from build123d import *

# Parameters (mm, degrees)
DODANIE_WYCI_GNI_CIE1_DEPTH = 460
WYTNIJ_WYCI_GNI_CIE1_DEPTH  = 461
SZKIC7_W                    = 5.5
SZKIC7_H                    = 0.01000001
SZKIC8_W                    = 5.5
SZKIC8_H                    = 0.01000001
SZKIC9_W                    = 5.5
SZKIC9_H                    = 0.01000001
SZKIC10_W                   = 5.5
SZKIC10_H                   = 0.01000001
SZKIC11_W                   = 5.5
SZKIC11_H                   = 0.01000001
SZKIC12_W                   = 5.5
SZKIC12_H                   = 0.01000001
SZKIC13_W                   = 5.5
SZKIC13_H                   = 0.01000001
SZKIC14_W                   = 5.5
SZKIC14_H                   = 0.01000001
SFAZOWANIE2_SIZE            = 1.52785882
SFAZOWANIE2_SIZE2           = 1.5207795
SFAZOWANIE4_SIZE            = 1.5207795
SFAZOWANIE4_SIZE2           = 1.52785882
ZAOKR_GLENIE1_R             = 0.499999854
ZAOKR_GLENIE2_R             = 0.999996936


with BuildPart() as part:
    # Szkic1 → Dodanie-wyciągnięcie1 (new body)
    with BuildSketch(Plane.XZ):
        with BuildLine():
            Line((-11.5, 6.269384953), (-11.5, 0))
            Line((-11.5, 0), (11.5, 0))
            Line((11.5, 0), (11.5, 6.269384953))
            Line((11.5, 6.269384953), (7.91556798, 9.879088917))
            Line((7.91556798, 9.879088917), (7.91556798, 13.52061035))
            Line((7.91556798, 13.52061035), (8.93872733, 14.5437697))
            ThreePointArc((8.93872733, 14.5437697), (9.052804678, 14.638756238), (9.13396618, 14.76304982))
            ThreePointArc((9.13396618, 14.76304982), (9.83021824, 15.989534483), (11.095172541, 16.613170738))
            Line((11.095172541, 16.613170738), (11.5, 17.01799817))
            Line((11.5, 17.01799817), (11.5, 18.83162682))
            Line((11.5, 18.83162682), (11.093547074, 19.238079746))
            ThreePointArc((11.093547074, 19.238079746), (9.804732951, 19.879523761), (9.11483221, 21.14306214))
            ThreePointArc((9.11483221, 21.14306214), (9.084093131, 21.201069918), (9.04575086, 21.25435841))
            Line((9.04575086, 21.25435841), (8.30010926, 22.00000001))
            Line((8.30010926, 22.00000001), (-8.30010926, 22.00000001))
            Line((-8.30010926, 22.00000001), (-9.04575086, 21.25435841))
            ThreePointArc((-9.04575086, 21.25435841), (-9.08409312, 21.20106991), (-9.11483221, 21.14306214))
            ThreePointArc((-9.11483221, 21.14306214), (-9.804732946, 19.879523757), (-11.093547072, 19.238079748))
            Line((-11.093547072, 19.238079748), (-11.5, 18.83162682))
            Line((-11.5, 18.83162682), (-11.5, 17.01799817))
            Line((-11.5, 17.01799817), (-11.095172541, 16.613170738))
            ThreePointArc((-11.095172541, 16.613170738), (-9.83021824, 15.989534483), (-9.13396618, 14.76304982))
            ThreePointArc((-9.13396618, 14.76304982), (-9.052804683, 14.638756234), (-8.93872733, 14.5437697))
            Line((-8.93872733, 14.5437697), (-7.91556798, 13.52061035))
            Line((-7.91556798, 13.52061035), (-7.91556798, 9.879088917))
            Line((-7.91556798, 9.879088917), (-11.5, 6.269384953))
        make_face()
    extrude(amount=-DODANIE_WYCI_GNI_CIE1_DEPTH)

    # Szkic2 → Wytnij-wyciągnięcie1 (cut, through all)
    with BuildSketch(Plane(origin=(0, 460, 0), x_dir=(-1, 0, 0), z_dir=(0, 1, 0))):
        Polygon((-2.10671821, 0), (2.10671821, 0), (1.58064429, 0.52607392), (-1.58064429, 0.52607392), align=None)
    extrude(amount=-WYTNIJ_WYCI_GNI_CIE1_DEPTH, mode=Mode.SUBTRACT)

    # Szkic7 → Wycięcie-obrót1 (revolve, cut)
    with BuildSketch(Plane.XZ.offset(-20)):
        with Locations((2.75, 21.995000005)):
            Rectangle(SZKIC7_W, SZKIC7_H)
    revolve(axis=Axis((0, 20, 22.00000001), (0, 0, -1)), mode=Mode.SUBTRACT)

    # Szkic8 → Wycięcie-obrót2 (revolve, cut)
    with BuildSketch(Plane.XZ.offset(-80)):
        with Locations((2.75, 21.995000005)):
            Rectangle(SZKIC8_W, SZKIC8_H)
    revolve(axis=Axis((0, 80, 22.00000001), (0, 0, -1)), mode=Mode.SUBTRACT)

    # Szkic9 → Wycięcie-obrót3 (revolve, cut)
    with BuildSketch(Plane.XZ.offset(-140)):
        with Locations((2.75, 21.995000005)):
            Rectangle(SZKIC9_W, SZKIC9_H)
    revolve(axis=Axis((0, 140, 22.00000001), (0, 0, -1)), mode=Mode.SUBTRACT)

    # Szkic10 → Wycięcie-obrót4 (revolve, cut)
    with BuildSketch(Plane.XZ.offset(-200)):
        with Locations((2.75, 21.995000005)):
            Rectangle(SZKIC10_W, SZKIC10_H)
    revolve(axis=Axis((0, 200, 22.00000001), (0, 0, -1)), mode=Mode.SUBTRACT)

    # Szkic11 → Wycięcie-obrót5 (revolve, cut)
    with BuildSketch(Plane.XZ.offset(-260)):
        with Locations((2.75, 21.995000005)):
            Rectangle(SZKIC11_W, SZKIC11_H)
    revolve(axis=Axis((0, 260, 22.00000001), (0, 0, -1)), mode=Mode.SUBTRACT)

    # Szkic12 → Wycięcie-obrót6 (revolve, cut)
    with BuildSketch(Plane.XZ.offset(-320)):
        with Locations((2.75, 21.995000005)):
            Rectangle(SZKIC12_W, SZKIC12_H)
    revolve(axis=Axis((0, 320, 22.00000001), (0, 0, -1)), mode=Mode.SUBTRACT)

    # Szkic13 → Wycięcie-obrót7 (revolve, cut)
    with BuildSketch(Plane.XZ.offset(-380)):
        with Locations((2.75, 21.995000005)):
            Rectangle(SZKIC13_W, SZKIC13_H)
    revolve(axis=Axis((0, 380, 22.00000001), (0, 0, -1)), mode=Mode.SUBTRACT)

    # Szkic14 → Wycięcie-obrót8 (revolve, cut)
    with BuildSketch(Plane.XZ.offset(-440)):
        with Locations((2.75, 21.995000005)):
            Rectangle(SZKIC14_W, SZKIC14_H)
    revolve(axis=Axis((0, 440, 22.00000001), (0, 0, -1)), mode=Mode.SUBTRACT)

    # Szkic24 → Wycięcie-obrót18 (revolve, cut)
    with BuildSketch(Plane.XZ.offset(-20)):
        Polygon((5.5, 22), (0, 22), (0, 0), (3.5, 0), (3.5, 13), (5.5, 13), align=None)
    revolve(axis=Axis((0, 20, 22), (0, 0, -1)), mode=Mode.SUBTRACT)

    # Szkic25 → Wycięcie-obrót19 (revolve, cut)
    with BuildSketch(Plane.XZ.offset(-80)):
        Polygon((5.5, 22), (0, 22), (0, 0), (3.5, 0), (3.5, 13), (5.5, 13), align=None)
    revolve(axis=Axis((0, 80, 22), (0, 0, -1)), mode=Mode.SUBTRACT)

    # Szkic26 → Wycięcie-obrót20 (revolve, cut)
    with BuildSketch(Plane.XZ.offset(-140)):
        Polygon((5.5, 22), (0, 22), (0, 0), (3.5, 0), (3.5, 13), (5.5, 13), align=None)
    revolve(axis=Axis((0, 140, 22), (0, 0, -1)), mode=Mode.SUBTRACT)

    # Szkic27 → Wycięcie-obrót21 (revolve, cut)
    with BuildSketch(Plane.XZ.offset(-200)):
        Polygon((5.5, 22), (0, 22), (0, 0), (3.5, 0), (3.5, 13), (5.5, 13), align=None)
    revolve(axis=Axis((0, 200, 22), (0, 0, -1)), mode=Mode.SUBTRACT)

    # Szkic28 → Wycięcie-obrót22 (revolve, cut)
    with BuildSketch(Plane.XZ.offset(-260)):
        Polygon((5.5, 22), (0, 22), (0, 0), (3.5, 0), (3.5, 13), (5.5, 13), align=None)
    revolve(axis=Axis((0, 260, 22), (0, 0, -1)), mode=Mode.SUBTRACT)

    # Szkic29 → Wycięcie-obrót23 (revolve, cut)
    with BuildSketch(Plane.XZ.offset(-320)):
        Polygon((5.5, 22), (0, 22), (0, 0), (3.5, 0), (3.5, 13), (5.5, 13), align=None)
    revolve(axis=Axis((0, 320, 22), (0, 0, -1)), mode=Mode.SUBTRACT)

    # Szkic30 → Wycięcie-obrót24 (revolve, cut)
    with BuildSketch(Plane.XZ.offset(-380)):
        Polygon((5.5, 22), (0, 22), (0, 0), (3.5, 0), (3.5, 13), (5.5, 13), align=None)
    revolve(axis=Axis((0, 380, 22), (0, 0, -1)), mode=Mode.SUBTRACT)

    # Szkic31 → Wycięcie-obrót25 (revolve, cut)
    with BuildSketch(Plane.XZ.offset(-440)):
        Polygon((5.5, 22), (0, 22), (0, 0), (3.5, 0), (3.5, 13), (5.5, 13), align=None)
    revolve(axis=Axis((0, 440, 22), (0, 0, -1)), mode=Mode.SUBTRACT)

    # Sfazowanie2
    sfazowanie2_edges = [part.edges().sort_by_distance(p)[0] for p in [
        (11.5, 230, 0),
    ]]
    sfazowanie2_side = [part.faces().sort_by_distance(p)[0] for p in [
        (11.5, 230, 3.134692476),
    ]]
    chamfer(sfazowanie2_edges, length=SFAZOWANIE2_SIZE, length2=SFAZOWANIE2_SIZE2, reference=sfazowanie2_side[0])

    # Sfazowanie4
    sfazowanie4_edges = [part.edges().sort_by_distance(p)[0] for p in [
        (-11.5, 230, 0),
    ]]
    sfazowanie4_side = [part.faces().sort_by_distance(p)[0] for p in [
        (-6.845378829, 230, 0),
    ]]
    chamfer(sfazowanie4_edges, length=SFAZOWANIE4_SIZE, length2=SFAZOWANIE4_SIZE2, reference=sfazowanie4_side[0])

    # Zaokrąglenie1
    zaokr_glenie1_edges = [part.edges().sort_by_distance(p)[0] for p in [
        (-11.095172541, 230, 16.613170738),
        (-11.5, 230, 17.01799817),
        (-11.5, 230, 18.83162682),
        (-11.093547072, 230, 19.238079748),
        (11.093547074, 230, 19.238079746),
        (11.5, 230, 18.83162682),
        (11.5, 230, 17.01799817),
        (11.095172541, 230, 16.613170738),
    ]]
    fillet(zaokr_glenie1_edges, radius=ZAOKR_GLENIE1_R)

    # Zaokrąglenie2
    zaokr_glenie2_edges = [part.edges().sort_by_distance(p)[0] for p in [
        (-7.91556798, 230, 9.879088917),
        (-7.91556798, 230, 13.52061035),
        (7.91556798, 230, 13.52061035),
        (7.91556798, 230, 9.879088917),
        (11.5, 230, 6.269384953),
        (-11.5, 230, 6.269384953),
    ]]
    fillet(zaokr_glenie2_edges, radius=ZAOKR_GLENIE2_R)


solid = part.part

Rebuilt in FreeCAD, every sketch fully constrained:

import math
import FreeCAD as App
import Part
import Sketcher

V = App.Vector


def edges_at(feature, points):
    """Names of the edges that pass closest to the given points."""
    edges = feature.Shape.Edges
    near = lambda p: min(range(len(edges)), key=lambda i: edges[i].distToShape(Part.Vertex(*p))[0])
    return sorted({f"Edge{near(p) + 1}" for p in points})


def add_polygon(sketch, points):
    """Adds a closed chain of lines whose ends are joined by coincident constraints."""
    first, n = sketch.GeometryCount, len(points)
    for a, b in zip(points, points[1:] + points[:1]):
        sketch.addGeometry(Part.LineSegment(App.Vector(*a, 0), App.Vector(*b, 0)), False)
    for i in range(n):
        sketch.addConstraint(Sketcher.Constraint("Coincident", first + i, 2, first + (i + 1) % n, 1))

doc = App.newDocument("Part")
params = doc.addObject("Spreadsheet::Sheet", "Params")
for row, (alias, value) in enumerate([
    ("sketch1_radius", "0.5 mm"),
    ("sketch1_radius2", "2.4 mm"),
    ("sketch1_radius3", "2.4 mm"),
    ("sketch1_radius4", "2.4 mm"),
    ("sketch1_radius5", "2.4 mm"),
    ("pad1_length", "460 mm"),
    ("sketch3_width", "5.5 mm"),
    ("sketch3_height", "0.01 mm"),
    ("groove_angle", "360 deg"),
    ("sketch4_width", "5.5 mm"),
    ("sketch4_height", "0.01 mm"),
    ("groove2_angle", "360 deg"),
    ("sketch5_width", "5.5 mm"),
    ("sketch5_height", "0.01 mm"),
    ("groove3_angle", "360 deg"),
    ("sketch6_width", "5.5 mm"),
    ("sketch6_height", "0.01 mm"),
    ("groove4_angle", "360 deg"),
    ("sketch7_width", "5.5 mm"),
    ("sketch7_height", "0.01 mm"),
    ("groove5_angle", "360 deg"),
    ("sketch8_width", "5.5 mm"),
    ("sketch8_height", "0.01 mm"),
    ("groove6_angle", "360 deg"),
    ("sketch9_width", "5.5 mm"),
    ("sketch9_height", "0.01 mm"),
    ("groove7_angle", "360 deg"),
    ("sketch10_width", "5.5 mm"),
    ("sketch10_height", "0.01 mm"),
    ("groove8_angle", "360 deg"),
    ("sketch11_width", "2 mm"),
    ("sketch11_height", "22 mm"),
    ("sketch11_height2", "13 mm"),
    ("sketch11_width2", "5.5 mm"),
    ("groove9_angle", "360 deg"),
    ("sketch12_width", "2 mm"),
    ("sketch12_height", "22 mm"),
    ("sketch12_height2", "13 mm"),
    ("sketch12_width2", "5.5 mm"),
    ("groove10_angle", "360 deg"),
    ("sketch13_width", "2 mm"),
    ("sketch13_height", "22 mm"),
    ("sketch13_height2", "13 mm"),
    ("sketch13_width2", "5.5 mm"),
    ("groove11_angle", "360 deg"),
    ("sketch14_width", "2 mm"),
    ("sketch14_height", "22 mm"),
    ("sketch14_height2", "13 mm"),
    ("sketch14_width2", "5.5 mm"),
    ("groove12_angle", "360 deg"),
    ("sketch15_width", "2 mm"),
    ("sketch15_height", "22 mm"),
    ("sketch15_height2", "13 mm"),
    ("sketch15_width2", "5.5 mm"),
    ("groove13_angle", "360 deg"),
    ("sketch16_width", "2 mm"),
    ("sketch16_height", "22 mm"),
    ("sketch16_height2", "13 mm"),
    ("sketch16_width2", "5.5 mm"),
    ("groove14_angle", "360 deg"),
    ("sketch17_width", "2 mm"),
    ("sketch17_height", "22 mm"),
    ("sketch17_height2", "13 mm"),
    ("sketch17_width2", "5.5 mm"),
    ("groove15_angle", "360 deg"),
    ("sketch18_width", "2 mm"),
    ("sketch18_height", "22 mm"),
    ("sketch18_height2", "13 mm"),
    ("sketch18_width2", "5.5 mm"),
    ("groove16_angle", "360 deg"),
    ("chamfer_size", "1.527859 mm"),
    ("chamfer_size2", "1.520779 mm"),
    ("chamfer2_size", "1.520779 mm"),
    ("chamfer2_size2", "1.527859 mm"),
    ("fillet_radius", "0.5 mm"),
    ("fillet2_radius", "0.999997 mm"),
], start=1):
    params.set(f"A{row}", alias)
    params.set(f"B{row}", "=" + value)
    params.setAlias(f"B{row}", alias)

body = doc.addObject("PartDesign::Body", "Body")

sketch1 = doc.addObject("Sketcher::SketchObject", "Sketch")
body.addObject(sketch1)
sketch1.AttachmentSupport = (doc.XZ_Plane, [""])
sketch1.MapMode = "FlatFace"
sketch1.addGeometry([
    Part.LineSegment(V(-11.5, 6.269385, 0), V(-11.5, 0, 0)),
    Part.LineSegment(V(-11.5, 0, 0), V(11.5, 0, 0)),
    Part.LineSegment(V(11.5, 0, 0), V(11.5, 6.269385, 0)),
    Part.LineSegment(V(11.5, 6.269385, 0), V(7.915568, 9.879089, 0)),
    Part.LineSegment(V(7.915568, 9.879089, 0), V(7.915568, 13.52061, 0)),
    Part.LineSegment(V(7.915568, 13.52061, 0), V(8.938727, 14.54377, 0)),
    Part.ArcOfCircle(Part.Circle(V(8.679373, 14.971246, 0), V(0, 0, 1), 0.5), math.radians(-58.754387), math.radians(-24.606969)),
    Part.ArcOfCircle(Part.Circle(V(11.477112, 14.243757, 0), V(0, 0, 1), 2.4), math.radians(99.157077), math.radians(167.503968)),
    Part.LineSegment(V(11.095173, 16.613171, 0), V(11.5, 17.017998, 0)),
    Part.LineSegment(V(11.5, 17.017998, 0), V(11.5, 18.831627, 0)),
    Part.LineSegment(V(11.5, 18.831627, 0), V(11.093547, 19.23808, 0)),
    Part.ArcOfCircle(Part.Circle(V(11.46927, 21.608487, 0), V(0, 0, 1), 2.4), math.radians(-168.817942), math.radians(-99.006784)),
    Part.ArcOfCircle(Part.Circle(V(8.674901, 20.947085, 0), V(0, 0, 1), 0.481608), math.radians(24.011618), math.radians(39.643949)),
    Part.LineSegment(V(9.045751, 21.254358, 0), V(8.300109, 22, 0)),
    Part.LineSegment(V(8.300109, 22, 0), V(-8.300109, 22, 0)),
    Part.LineSegment(V(-8.300109, 22, 0), V(-9.045751, 21.254358, 0)),
    Part.ArcOfCircle(Part.Circle(V(-8.6749, 20.947084, 0), V(0, 0, 1), 0.48161), math.radians(140.356074), math.radians(155.988359)),
    Part.ArcOfCircle(Part.Circle(V(-11.46927, 21.608487, 0), V(0, 0, 1), 2.4), math.radians(-80.993216), math.radians(-11.182057)),
    Part.LineSegment(V(-11.093547, 19.23808, 0), V(-11.5, 18.831627, 0)),
    Part.LineSegment(V(-11.5, 18.831627, 0), V(-11.5, 17.017998, 0)),
    Part.LineSegment(V(-11.5, 17.017998, 0), V(-11.095173, 16.613171, 0)),
    Part.ArcOfCircle(Part.Circle(V(-11.477112, 14.243757, 0), V(0, 0, 1), 2.4), math.radians(12.496032), math.radians(80.842923)),
    Part.ArcOfCircle(Part.Circle(V(-8.679374, 14.971245, 0), V(0, 0, 1), 0.5), math.radians(-155.393036), math.radians(-121.245608)),
    Part.LineSegment(V(-8.938727, 14.54377, 0), V(-7.915568, 13.52061, 0)),
    Part.LineSegment(V(-7.915568, 13.52061, 0), V(-7.915568, 9.879089, 0)),
    Part.LineSegment(V(-7.915568, 9.879089, 0), V(-11.5, 6.269385, 0)),
], False)
sketch1.addConstraint([
    Sketcher.Constraint("Coincident", 0, 2, 1, 1),
    Sketcher.Constraint("Coincident", 1, 2, 2, 1),
    Sketcher.Constraint("Coincident", 2, 2, 3, 1),
    Sketcher.Constraint("Coincident", 3, 2, 4, 1),
    Sketcher.Constraint("Coincident", 4, 2, 5, 1),
    Sketcher.Constraint("Coincident", 5, 2, 6, 1),
    Sketcher.Constraint("Coincident", 6, 2, 7, 2),
    Sketcher.Constraint("Coincident", 7, 1, 8, 1),
    Sketcher.Constraint("Coincident", 8, 2, 9, 1),
    Sketcher.Constraint("Coincident", 9, 2, 10, 1),
    Sketcher.Constraint("Coincident", 10, 2, 11, 2),
    Sketcher.Constraint("Coincident", 11, 1, 12, 1),
    Sketcher.Constraint("Coincident", 12, 2, 13, 1),
    Sketcher.Constraint("Coincident", 13, 2, 14, 1),
    Sketcher.Constraint("Coincident", 14, 2, 15, 1),
    Sketcher.Constraint("Coincident", 15, 2, 16, 1),
    Sketcher.Constraint("Coincident", 16, 2, 17, 2),
    Sketcher.Constraint("Coincident", 17, 1, 18, 1),
    Sketcher.Constraint("Coincident", 18, 2, 19, 1),
    Sketcher.Constraint("Coincident", 19, 2, 20, 1),
    Sketcher.Constraint("Coincident", 20, 2, 21, 2),
    Sketcher.Constraint("Coincident", 21, 1, 22, 1),
    Sketcher.Constraint("Coincident", 22, 2, 23, 1),
    Sketcher.Constraint("Coincident", 23, 2, 24, 1),
    Sketcher.Constraint("Coincident", 24, 2, 25, 1),
    Sketcher.Constraint("Coincident", 25, 2, 0, 1),
    Sketcher.Constraint("Vertical", 0),
    Sketcher.Constraint("Horizontal", 1),
    Sketcher.Constraint("Vertical", 2),
    Sketcher.Constraint("Vertical", 4),
    Sketcher.Constraint("Vertical", 9),
    Sketcher.Constraint("Horizontal", 14),
    Sketcher.Constraint("Vertical", 19),
    Sketcher.Constraint("Vertical", 24),
    Sketcher.Constraint("PointOnObject", 0, 2, -1),
    Sketcher.Constraint("Radius", 6, 0.5),
    Sketcher.Constraint("Radius", 7, 2.4),
    Sketcher.Constraint("Radius", 11, 2.4),
    Sketcher.Constraint("Radius", 17, 2.4),
    Sketcher.Constraint("Radius", 21, 2.4),
    Sketcher.Constraint("Radius", 22, 0.5),
    Sketcher.Constraint("DistanceX", 1, 1, 1, 2, 23.0),
    Sketcher.Constraint("DistanceY", -1, 1, 13, 2, 22.0),
    Sketcher.Constraint("DistanceX", 0, 2, -1, 1, 11.5),
    Sketcher.Constraint("DistanceX", -1, 1, 8, 2, 11.5),
    Sketcher.Constraint("DistanceX", 18, 2, -1, 1, 11.5),
    Sketcher.Constraint("Radius", 12, 0.481608),
    Sketcher.Constraint("Radius", 16, 0.48161),
    Sketcher.Constraint("DistanceY", -1, 1, 8, 2, 17.017998),
    Sketcher.Constraint("DistanceY", -1, 1, 19, 2, 17.017998),
    Sketcher.Constraint("DistanceX", 14, 2, 14, 1, 16.600219),
    Sketcher.Constraint("DistanceY", 4, 1, 4, 2, 3.641521),
    Sketcher.Constraint("DistanceY", 9, 1, 9, 2, 1.813629),
    Sketcher.Constraint("DistanceY", 19, 2, 19, 1, 1.813629),
    Sketcher.Constraint("DistanceY", 24, 2, 24, 1, 3.641521),
    Sketcher.Constraint("DistanceX", -1, 1, 12, 3, 8.674901),
    Sketcher.Constraint("DistanceX", 16, 3, -1, 1, 8.6749),
    Sketcher.Constraint("DistanceY", 2, 2, 12, 3, 14.6777),
    Sketcher.Constraint("DistanceX", 4, 2, 6, 2, 1.218398),
    Sketcher.Constraint("DistanceX", 6, 3, 7, 1, 2.415799),
    Sketcher.Constraint("DistanceY", 5, 2, 7, 1, 2.069401),
    Sketcher.Constraint("DistanceY", 21, 3, 15, 2, 7.010601),
    Sketcher.Constraint("DistanceX", 20, 2, 22, 3, 2.415799),
    Sketcher.Constraint("DistanceY", 22, 2, 20, 2, 2.069401),
    Sketcher.Constraint("DistanceX", 21, 1, 23, 2, 1.218398),
    Sketcher.Constraint("Distance", 10, 0.574811),
    Sketcher.Constraint("Distance", 18, 0.574811),
    Sketcher.Constraint("DistanceY", 0, 2, 0, 1, 6.269385),
    Sketcher.Constraint("DistanceY", 2, 1, 2, 2, 6.269385),
    Sketcher.Constraint("DistanceX", -1, 1, 11, 3, 11.46927),
    Sketcher.Constraint("DistanceX", 17, 3, -1, 1, 11.46927),
    Sketcher.Constraint("DistanceY", -1, 1, 3, 2, 9.879089),
    Sketcher.Constraint("DistanceY", -1, 1, 5, 2, 14.54377),
    Sketcher.Constraint("DistanceY", -1, 1, 6, 2, 14.76305),
    Sketcher.Constraint("DistanceY", -1, 1, 10, 2, 19.23808),
    Sketcher.Constraint("DistanceX", -1, 1, 12, 2, 9.045751),
    Sketcher.Constraint("DistanceX", -1, 1, 13, 2, 8.300109),
    Sketcher.Constraint("DistanceX", 15, 2, -1, 1, 9.045751),
    Sketcher.Constraint("DistanceY", -1, 1, 15, 2, 21.254358),
    Sketcher.Constraint("DistanceY", -1, 1, 17, 1, 19.23808),
    Sketcher.Constraint("DistanceY", -1, 1, 20, 2, 16.613171),
    Sketcher.Constraint("DistanceY", -1, 1, 21, 1, 14.76305),
    Sketcher.Constraint("DistanceY", -1, 1, 23, 2, 13.52061),
    Sketcher.Constraint("DistanceX", 6, 3, 7, 3, 2.797739),
    Sketcher.Constraint("DistanceX", 11, 3, 7, 3, 0.007842),
    Sketcher.Constraint("DistanceX", 21, 3, 17, 3, 0.007842),
])
sketch1.setExpression("Constraints[35]", "Params.sketch1_radius")
sketch1.setExpression("Constraints[36]", "Params.sketch1_radius2")
sketch1.setExpression("Constraints[37]", "Params.sketch1_radius3")
sketch1.setExpression("Constraints[38]", "Params.sketch1_radius4")
sketch1.setExpression("Constraints[39]", "Params.sketch1_radius5")
pad1 = doc.addObject("PartDesign::Pad", "Pad")
body.addObject(pad1)
pad1.Profile = sketch1
pad1.setExpression("Length", "Params.pad1_length")
pad1.Reversed = True

sketch2 = doc.addObject("Sketcher::SketchObject", "Sketch001")
body.addObject(sketch2)
sketch2.AttachmentSupport = (doc.XZ_Plane, [""])
sketch2.MapMode = "FlatFace"
sketch2.AttachmentOffset = App.Placement(V(0, 0, -460), App.Rotation())
add_polygon(sketch2, [(2.1, 0), (-2.1, 0), (-1.6, 0.5), (1.6, 0.5)])
sketch2.addConstraint([
    Sketcher.Constraint("Horizontal", 0),
    Sketcher.Constraint("Horizontal", 2),
    Sketcher.Constraint("Symmetric", 0, 2, 3, 2, -1, 1),
    Sketcher.Constraint("Perpendicular", 1, 3),
    Sketcher.Constraint("Equal", 1, 3),
    Sketcher.Constraint("DistanceX", 2, 1, 2, 2, 3.161289),
    Sketcher.Constraint("Distance", 1, 0.743981),
])
pocket1 = doc.addObject("PartDesign::Pocket", "Pocket")
body.addObject(pocket1)
pocket1.Profile = sketch2
pocket1.Type = "ThroughAll"
pocket1.Reversed = True

sketch3 = doc.addObject("Sketcher::SketchObject", "Sketch002")
body.addObject(sketch3)
sketch3.AttachmentSupport = (doc.XZ_Plane, [""])
sketch3.MapMode = "FlatFace"
sketch3.AttachmentOffset = App.Placement(V(0, 0, -20), App.Rotation())
add_polygon(sketch3, [(0, 22), (0, 21.99), (5.5, 21.99), (5.5, 22)])
sketch3.addConstraint([
    Sketcher.Constraint("Vertical", 0),
    Sketcher.Constraint("Horizontal", 1),
    Sketcher.Constraint("Vertical", 2),
    Sketcher.Constraint("Horizontal", 3),
    Sketcher.Constraint("PointOnObject", 0, 2, -2),
    Sketcher.Constraint("DistanceX", 1, 1, 1, 2, 5.5),
    Sketcher.Constraint("DistanceY", -1, 1, 2, 2, 22.0),
    Sketcher.Constraint("DistanceY", 0, 2, 0, 1, 0.01),
])
sketch3.setExpression("Constraints[9]", "Params.sketch3_width")
sketch3.setExpression("Constraints[11]", "Params.sketch3_height")
groove = doc.addObject("PartDesign::Groove", "Groove")
body.addObject(groove)
groove.Profile = sketch3
groove.ReferenceAxis = (sketch3, ["V_Axis"])
groove.setExpression("Angle", "Params.groove_angle")

sketch4 = doc.addObject("Sketcher::SketchObject", "Sketch003")
body.addObject(sketch4)
sketch4.AttachmentSupport = (doc.XZ_Plane, [""])
sketch4.MapMode = "FlatFace"
sketch4.AttachmentOffset = App.Placement(V(0, 0, -80), App.Rotation())
add_polygon(sketch4, [(0, 22), (0, 21.99), (5.5, 21.99), (5.5, 22)])
sketch4.addConstraint([
    Sketcher.Constraint("Vertical", 0),
    Sketcher.Constraint("Horizontal", 1),
    Sketcher.Constraint("Vertical", 2),
    Sketcher.Constraint("Horizontal", 3),
    Sketcher.Constraint("PointOnObject", 0, 2, -2),
    Sketcher.Constraint("DistanceX", 1, 1, 1, 2, 5.5),
    Sketcher.Constraint("DistanceY", -1, 1, 2, 2, 22.0),
    Sketcher.Constraint("DistanceY", 0, 2, 0, 1, 0.01),
])
sketch4.setExpression("Constraints[9]", "Params.sketch4_width")
sketch4.setExpression("Constraints[11]", "Params.sketch4_height")
groove2 = doc.addObject("PartDesign::Groove", "Groove001")
body.addObject(groove2)
groove2.Profile = sketch4
groove2.ReferenceAxis = (sketch4, ["V_Axis"])
groove2.setExpression("Angle", "Params.groove2_angle")

sketch5 = doc.addObject("Sketcher::SketchObject", "Sketch004")
body.addObject(sketch5)
sketch5.AttachmentSupport = (doc.XZ_Plane, [""])
sketch5.MapMode = "FlatFace"
sketch5.AttachmentOffset = App.Placement(V(0, 0, -140), App.Rotation())
add_polygon(sketch5, [(0, 22), (0, 21.99), (5.5, 21.99), (5.5, 22)])
sketch5.addConstraint([
    Sketcher.Constraint("Vertical", 0),
    Sketcher.Constraint("Horizontal", 1),
    Sketcher.Constraint("Vertical", 2),
    Sketcher.Constraint("Horizontal", 3),
    Sketcher.Constraint("PointOnObject", 0, 2, -2),
    Sketcher.Constraint("DistanceX", 1, 1, 1, 2, 5.5),
    Sketcher.Constraint("DistanceY", -1, 1, 2, 2, 22.0),
    Sketcher.Constraint("DistanceY", 0, 2, 0, 1, 0.01),
])
sketch5.setExpression("Constraints[9]", "Params.sketch5_width")
sketch5.setExpression("Constraints[11]", "Params.sketch5_height")
groove3 = doc.addObject("PartDesign::Groove", "Groove002")
body.addObject(groove3)
groove3.Profile = sketch5
groove3.ReferenceAxis = (sketch5, ["V_Axis"])
groove3.setExpression("Angle", "Params.groove3_angle")

sketch6 = doc.addObject("Sketcher::SketchObject", "Sketch005")
body.addObject(sketch6)
sketch6.AttachmentSupport = (doc.XZ_Plane, [""])
sketch6.MapMode = "FlatFace"
sketch6.AttachmentOffset = App.Placement(V(0, 0, -200), App.Rotation())
add_polygon(sketch6, [(0, 22), (0, 21.99), (5.5, 21.99), (5.5, 22)])
sketch6.addConstraint([
    Sketcher.Constraint("Vertical", 0),
    Sketcher.Constraint("Horizontal", 1),
    Sketcher.Constraint("Vertical", 2),
    Sketcher.Constraint("Horizontal", 3),
    Sketcher.Constraint("PointOnObject", 0, 2, -2),
    Sketcher.Constraint("DistanceX", 1, 1, 1, 2, 5.5),
    Sketcher.Constraint("DistanceY", -1, 1, 2, 2, 22.0),
    Sketcher.Constraint("DistanceY", 0, 2, 0, 1, 0.01),
])
sketch6.setExpression("Constraints[9]", "Params.sketch6_width")
sketch6.setExpression("Constraints[11]", "Params.sketch6_height")
groove4 = doc.addObject("PartDesign::Groove", "Groove003")
body.addObject(groove4)
groove4.Profile = sketch6
groove4.ReferenceAxis = (sketch6, ["V_Axis"])
groove4.setExpression("Angle", "Params.groove4_angle")

sketch7 = doc.addObject("Sketcher::SketchObject", "Sketch006")
body.addObject(sketch7)
sketch7.AttachmentSupport = (doc.XZ_Plane, [""])
sketch7.MapMode = "FlatFace"
sketch7.AttachmentOffset = App.Placement(V(0, 0, -260), App.Rotation())
add_polygon(sketch7, [(0, 22), (0, 21.99), (5.5, 21.99), (5.5, 22)])
sketch7.addConstraint([
    Sketcher.Constraint("Vertical", 0),
    Sketcher.Constraint("Horizontal", 1),
    Sketcher.Constraint("Vertical", 2),
    Sketcher.Constraint("Horizontal", 3),
    Sketcher.Constraint("PointOnObject", 0, 2, -2),
    Sketcher.Constraint("DistanceX", 1, 1, 1, 2, 5.5),
    Sketcher.Constraint("DistanceY", -1, 1, 2, 2, 22.0),
    Sketcher.Constraint("DistanceY", 0, 2, 0, 1, 0.01),
])
sketch7.setExpression("Constraints[9]", "Params.sketch7_width")
sketch7.setExpression("Constraints[11]", "Params.sketch7_height")
groove5 = doc.addObject("PartDesign::Groove", "Groove004")
body.addObject(groove5)
groove5.Profile = sketch7
groove5.ReferenceAxis = (sketch7, ["V_Axis"])
groove5.setExpression("Angle", "Params.groove5_angle")

sketch8 = doc.addObject("Sketcher::SketchObject", "Sketch007")
body.addObject(sketch8)
sketch8.AttachmentSupport = (doc.XZ_Plane, [""])
sketch8.MapMode = "FlatFace"
sketch8.AttachmentOffset = App.Placement(V(0, 0, -320), App.Rotation())
add_polygon(sketch8, [(0, 22), (0, 21.99), (5.5, 21.99), (5.5, 22)])
sketch8.addConstraint([
    Sketcher.Constraint("Vertical", 0),
    Sketcher.Constraint("Horizontal", 1),
    Sketcher.Constraint("Vertical", 2),
    Sketcher.Constraint("Horizontal", 3),
    Sketcher.Constraint("PointOnObject", 0, 2, -2),
    Sketcher.Constraint("DistanceX", 1, 1, 1, 2, 5.5),
    Sketcher.Constraint("DistanceY", -1, 1, 2, 2, 22.0),
    Sketcher.Constraint("DistanceY", 0, 2, 0, 1, 0.01),
])
sketch8.setExpression("Constraints[9]", "Params.sketch8_width")
sketch8.setExpression("Constraints[11]", "Params.sketch8_height")
groove6 = doc.addObject("PartDesign::Groove", "Groove005")
body.addObject(groove6)
groove6.Profile = sketch8
groove6.ReferenceAxis = (sketch8, ["V_Axis"])
groove6.setExpression("Angle", "Params.groove6_angle")

sketch9 = doc.addObject("Sketcher::SketchObject", "Sketch008")
body.addObject(sketch9)
sketch9.AttachmentSupport = (doc.XZ_Plane, [""])
sketch9.MapMode = "FlatFace"
sketch9.AttachmentOffset = App.Placement(V(0, 0, -380), App.Rotation())
add_polygon(sketch9, [(0, 22), (0, 21.99), (5.5, 21.99), (5.5, 22)])
sketch9.addConstraint([
    Sketcher.Constraint("Vertical", 0),
    Sketcher.Constraint("Horizontal", 1),
    Sketcher.Constraint("Vertical", 2),
    Sketcher.Constraint("Horizontal", 3),
    Sketcher.Constraint("PointOnObject", 0, 2, -2),
    Sketcher.Constraint("DistanceX", 1, 1, 1, 2, 5.5),
    Sketcher.Constraint("DistanceY", -1, 1, 2, 2, 22.0),
    Sketcher.Constraint("DistanceY", 0, 2, 0, 1, 0.01),
])
sketch9.setExpression("Constraints[9]", "Params.sketch9_width")
sketch9.setExpression("Constraints[11]", "Params.sketch9_height")
groove7 = doc.addObject("PartDesign::Groove", "Groove006")
body.addObject(groove7)
groove7.Profile = sketch9
groove7.ReferenceAxis = (sketch9, ["V_Axis"])
groove7.setExpression("Angle", "Params.groove7_angle")

sketch10 = doc.addObject("Sketcher::SketchObject", "Sketch009")
body.addObject(sketch10)
sketch10.AttachmentSupport = (doc.XZ_Plane, [""])
sketch10.MapMode = "FlatFace"
sketch10.AttachmentOffset = App.Placement(V(0, 0, -440), App.Rotation())
add_polygon(sketch10, [(0, 22), (0, 21.99), (5.5, 21.99), (5.5, 22)])
sketch10.addConstraint([
    Sketcher.Constraint("Vertical", 0),
    Sketcher.Constraint("Horizontal", 1),
    Sketcher.Constraint("Vertical", 2),
    Sketcher.Constraint("Horizontal", 3),
    Sketcher.Constraint("PointOnObject", 0, 2, -2),
    Sketcher.Constraint("DistanceX", 1, 1, 1, 2, 5.5),
    Sketcher.Constraint("DistanceY", -1, 1, 2, 2, 22.0),
    Sketcher.Constraint("DistanceY", 0, 2, 0, 1, 0.01),
])
sketch10.setExpression("Constraints[9]", "Params.sketch10_width")
sketch10.setExpression("Constraints[11]", "Params.sketch10_height")
groove8 = doc.addObject("PartDesign::Groove", "Groove007")
body.addObject(groove8)
groove8.Profile = sketch10
groove8.ReferenceAxis = (sketch10, ["V_Axis"])
groove8.setExpression("Angle", "Params.groove8_angle")

sketch11 = doc.addObject("Sketcher::SketchObject", "Sketch010")
body.addObject(sketch11)
sketch11.AttachmentSupport = (doc.XZ_Plane, [""])
sketch11.MapMode = "FlatFace"
sketch11.AttachmentOffset = App.Placement(V(0, 0, -20), App.Rotation())
add_polygon(sketch11, [(5.5, 22), (0, 22), (0, 0), (3.5, 0), (3.5, 13), (5.5, 13)])
sketch11.addConstraint([
    Sketcher.Constraint("Horizontal", 0),
    Sketcher.Constraint("Vertical", 1),
    Sketcher.Constraint("Horizontal", 2),
    Sketcher.Constraint("Vertical", 3),
    Sketcher.Constraint("Horizontal", 4),
    Sketcher.Constraint("Vertical", 5),
    Sketcher.Constraint("Coincident", 1, 2, -1, 1),
    Sketcher.Constraint("DistanceX", 4, 1, 4, 2, 2.0),
    Sketcher.Constraint("DistanceY", 1, 2, 1, 1, 22.0),
    Sketcher.Constraint("DistanceY", 3, 1, 3, 2, 13.0),
    Sketcher.Constraint("DistanceX", 0, 2, 0, 1, 5.5),
])
sketch11.setExpression("Constraints[13]", "Params.sketch11_width")
sketch11.setExpression("Constraints[14]", "Params.sketch11_height")
sketch11.setExpression("Constraints[15]", "Params.sketch11_height2")
sketch11.setExpression("Constraints[16]", "Params.sketch11_width2")
groove9 = doc.addObject("PartDesign::Groove", "Groove008")
body.addObject(groove9)
groove9.Profile = sketch11
groove9.ReferenceAxis = (sketch11, ["V_Axis"])
groove9.setExpression("Angle", "Params.groove9_angle")

sketch12 = doc.addObject("Sketcher::SketchObject", "Sketch011")
body.addObject(sketch12)
sketch12.AttachmentSupport = (doc.XZ_Plane, [""])
sketch12.MapMode = "FlatFace"
sketch12.AttachmentOffset = App.Placement(V(0, 0, -80), App.Rotation())
add_polygon(sketch12, [(5.5, 22), (0, 22), (0, 0), (3.5, 0), (3.5, 13), (5.5, 13)])
sketch12.addConstraint([
    Sketcher.Constraint("Horizontal", 0),
    Sketcher.Constraint("Vertical", 1),
    Sketcher.Constraint("Horizontal", 2),
    Sketcher.Constraint("Vertical", 3),
    Sketcher.Constraint("Horizontal", 4),
    Sketcher.Constraint("Vertical", 5),
    Sketcher.Constraint("Coincident", 1, 2, -1, 1),
    Sketcher.Constraint("DistanceX", 4, 1, 4, 2, 2.0),
    Sketcher.Constraint("DistanceY", 1, 2, 1, 1, 22.0),
    Sketcher.Constraint("DistanceY", 3, 1, 3, 2, 13.0),
    Sketcher.Constraint("DistanceX", 0, 2, 0, 1, 5.5),
])
sketch12.setExpression("Constraints[13]", "Params.sketch12_width")
sketch12.setExpression("Constraints[14]", "Params.sketch12_height")
sketch12.setExpression("Constraints[15]", "Params.sketch12_height2")
sketch12.setExpression("Constraints[16]", "Params.sketch12_width2")
groove10 = doc.addObject("PartDesign::Groove", "Groove009")
body.addObject(groove10)
groove10.Profile = sketch12
groove10.ReferenceAxis = (sketch12, ["V_Axis"])
groove10.setExpression("Angle", "Params.groove10_angle")

sketch13 = doc.addObject("Sketcher::SketchObject", "Sketch012")
body.addObject(sketch13)
sketch13.AttachmentSupport = (doc.XZ_Plane, [""])
sketch13.MapMode = "FlatFace"
sketch13.AttachmentOffset = App.Placement(V(0, 0, -140), App.Rotation())
add_polygon(sketch13, [(5.5, 22), (0, 22), (0, 0), (3.5, 0), (3.5, 13), (5.5, 13)])
sketch13.addConstraint([
    Sketcher.Constraint("Horizontal", 0),
    Sketcher.Constraint("Vertical", 1),
    Sketcher.Constraint("Horizontal", 2),
    Sketcher.Constraint("Vertical", 3),
    Sketcher.Constraint("Horizontal", 4),
    Sketcher.Constraint("Vertical", 5),
    Sketcher.Constraint("Coincident", 1, 2, -1, 1),
    Sketcher.Constraint("DistanceX", 4, 1, 4, 2, 2.0),
    Sketcher.Constraint("DistanceY", 1, 2, 1, 1, 22.0),
    Sketcher.Constraint("DistanceY", 3, 1, 3, 2, 13.0),
    Sketcher.Constraint("DistanceX", 0, 2, 0, 1, 5.5),
])
sketch13.setExpression("Constraints[13]", "Params.sketch13_width")
sketch13.setExpression("Constraints[14]", "Params.sketch13_height")
sketch13.setExpression("Constraints[15]", "Params.sketch13_height2")
sketch13.setExpression("Constraints[16]", "Params.sketch13_width2")
groove11 = doc.addObject("PartDesign::Groove", "Groove010")
body.addObject(groove11)
groove11.Profile = sketch13
groove11.ReferenceAxis = (sketch13, ["V_Axis"])
groove11.setExpression("Angle", "Params.groove11_angle")

sketch14 = doc.addObject("Sketcher::SketchObject", "Sketch013")
body.addObject(sketch14)
sketch14.AttachmentSupport = (doc.XZ_Plane, [""])
sketch14.MapMode = "FlatFace"
sketch14.AttachmentOffset = App.Placement(V(0, 0, -200), App.Rotation())
add_polygon(sketch14, [(5.5, 22), (0, 22), (0, 0), (3.5, 0), (3.5, 13), (5.5, 13)])
sketch14.addConstraint([
    Sketcher.Constraint("Horizontal", 0),
    Sketcher.Constraint("Vertical", 1),
    Sketcher.Constraint("Horizontal", 2),
    Sketcher.Constraint("Vertical", 3),
    Sketcher.Constraint("Horizontal", 4),
    Sketcher.Constraint("Vertical", 5),
    Sketcher.Constraint("Coincident", 1, 2, -1, 1),
    Sketcher.Constraint("DistanceX", 4, 1, 4, 2, 2.0),
    Sketcher.Constraint("DistanceY", 1, 2, 1, 1, 22.0),
    Sketcher.Constraint("DistanceY", 3, 1, 3, 2, 13.0),
    Sketcher.Constraint("DistanceX", 0, 2, 0, 1, 5.5),
])
sketch14.setExpression("Constraints[13]", "Params.sketch14_width")
sketch14.setExpression("Constraints[14]", "Params.sketch14_height")
sketch14.setExpression("Constraints[15]", "Params.sketch14_height2")
sketch14.setExpression("Constraints[16]", "Params.sketch14_width2")
groove12 = doc.addObject("PartDesign::Groove", "Groove011")
body.addObject(groove12)
groove12.Profile = sketch14
groove12.ReferenceAxis = (sketch14, ["V_Axis"])
groove12.setExpression("Angle", "Params.groove12_angle")

sketch15 = doc.addObject("Sketcher::SketchObject", "Sketch014")
body.addObject(sketch15)
sketch15.AttachmentSupport = (doc.XZ_Plane, [""])
sketch15.MapMode = "FlatFace"
sketch15.AttachmentOffset = App.Placement(V(0, 0, -260), App.Rotation())
add_polygon(sketch15, [(5.5, 22), (0, 22), (0, 0), (3.5, 0), (3.5, 13), (5.5, 13)])
sketch15.addConstraint([
    Sketcher.Constraint("Horizontal", 0),
    Sketcher.Constraint("Vertical", 1),
    Sketcher.Constraint("Horizontal", 2),
    Sketcher.Constraint("Vertical", 3),
    Sketcher.Constraint("Horizontal", 4),
    Sketcher.Constraint("Vertical", 5),
    Sketcher.Constraint("Coincident", 1, 2, -1, 1),
    Sketcher.Constraint("DistanceX", 4, 1, 4, 2, 2.0),
    Sketcher.Constraint("DistanceY", 1, 2, 1, 1, 22.0),
    Sketcher.Constraint("DistanceY", 3, 1, 3, 2, 13.0),
    Sketcher.Constraint("DistanceX", 0, 2, 0, 1, 5.5),
])
sketch15.setExpression("Constraints[13]", "Params.sketch15_width")
sketch15.setExpression("Constraints[14]", "Params.sketch15_height")
sketch15.setExpression("Constraints[15]", "Params.sketch15_height2")
sketch15.setExpression("Constraints[16]", "Params.sketch15_width2")
groove13 = doc.addObject("PartDesign::Groove", "Groove012")
body.addObject(groove13)
groove13.Profile = sketch15
groove13.ReferenceAxis = (sketch15, ["V_Axis"])
groove13.setExpression("Angle", "Params.groove13_angle")

sketch16 = doc.addObject("Sketcher::SketchObject", "Sketch015")
body.addObject(sketch16)
sketch16.AttachmentSupport = (doc.XZ_Plane, [""])
sketch16.MapMode = "FlatFace"
sketch16.AttachmentOffset = App.Placement(V(0, 0, -320), App.Rotation())
add_polygon(sketch16, [(5.5, 22), (0, 22), (0, 0), (3.5, 0), (3.5, 13), (5.5, 13)])
sketch16.addConstraint([
    Sketcher.Constraint("Horizontal", 0),
    Sketcher.Constraint("Vertical", 1),
    Sketcher.Constraint("Horizontal", 2),
    Sketcher.Constraint("Vertical", 3),
    Sketcher.Constraint("Horizontal", 4),
    Sketcher.Constraint("Vertical", 5),
    Sketcher.Constraint("Coincident", 1, 2, -1, 1),
    Sketcher.Constraint("DistanceX", 4, 1, 4, 2, 2.0),
    Sketcher.Constraint("DistanceY", 1, 2, 1, 1, 22.0),
    Sketcher.Constraint("DistanceY", 3, 1, 3, 2, 13.0),
    Sketcher.Constraint("DistanceX", 0, 2, 0, 1, 5.5),
])
sketch16.setExpression("Constraints[13]", "Params.sketch16_width")
sketch16.setExpression("Constraints[14]", "Params.sketch16_height")
sketch16.setExpression("Constraints[15]", "Params.sketch16_height2")
sketch16.setExpression("Constraints[16]", "Params.sketch16_width2")
groove14 = doc.addObject("PartDesign::Groove", "Groove013")
body.addObject(groove14)
groove14.Profile = sketch16
groove14.ReferenceAxis = (sketch16, ["V_Axis"])
groove14.setExpression("Angle", "Params.groove14_angle")

sketch17 = doc.addObject("Sketcher::SketchObject", "Sketch016")
body.addObject(sketch17)
sketch17.AttachmentSupport = (doc.XZ_Plane, [""])
sketch17.MapMode = "FlatFace"
sketch17.AttachmentOffset = App.Placement(V(0, 0, -380), App.Rotation())
add_polygon(sketch17, [(5.5, 22), (0, 22), (0, 0), (3.5, 0), (3.5, 13), (5.5, 13)])
sketch17.addConstraint([
    Sketcher.Constraint("Horizontal", 0),
    Sketcher.Constraint("Vertical", 1),
    Sketcher.Constraint("Horizontal", 2),
    Sketcher.Constraint("Vertical", 3),
    Sketcher.Constraint("Horizontal", 4),
    Sketcher.Constraint("Vertical", 5),
    Sketcher.Constraint("Coincident", 1, 2, -1, 1),
    Sketcher.Constraint("DistanceX", 4, 1, 4, 2, 2.0),
    Sketcher.Constraint("DistanceY", 1, 2, 1, 1, 22.0),
    Sketcher.Constraint("DistanceY", 3, 1, 3, 2, 13.0),
    Sketcher.Constraint("DistanceX", 0, 2, 0, 1, 5.5),
])
sketch17.setExpression("Constraints[13]", "Params.sketch17_width")
sketch17.setExpression("Constraints[14]", "Params.sketch17_height")
sketch17.setExpression("Constraints[15]", "Params.sketch17_height2")
sketch17.setExpression("Constraints[16]", "Params.sketch17_width2")
groove15 = doc.addObject("PartDesign::Groove", "Groove014")
body.addObject(groove15)
groove15.Profile = sketch17
groove15.ReferenceAxis = (sketch17, ["V_Axis"])
groove15.setExpression("Angle", "Params.groove15_angle")

sketch18 = doc.addObject("Sketcher::SketchObject", "Sketch017")
body.addObject(sketch18)
sketch18.AttachmentSupport = (doc.XZ_Plane, [""])
sketch18.MapMode = "FlatFace"
sketch18.AttachmentOffset = App.Placement(V(0, 0, -440), App.Rotation())
add_polygon(sketch18, [(5.5, 22), (0, 22), (0, 0), (3.5, 0), (3.5, 13), (5.5, 13)])
sketch18.addConstraint([
    Sketcher.Constraint("Horizontal", 0),
    Sketcher.Constraint("Vertical", 1),
    Sketcher.Constraint("Horizontal", 2),
    Sketcher.Constraint("Vertical", 3),
    Sketcher.Constraint("Horizontal", 4),
    Sketcher.Constraint("Vertical", 5),
    Sketcher.Constraint("Coincident", 1, 2, -1, 1),
    Sketcher.Constraint("DistanceX", 4, 1, 4, 2, 2.0),
    Sketcher.Constraint("DistanceY", 1, 2, 1, 1, 22.0),
    Sketcher.Constraint("DistanceY", 3, 1, 3, 2, 13.0),
    Sketcher.Constraint("DistanceX", 0, 2, 0, 1, 5.5),
])
sketch18.setExpression("Constraints[13]", "Params.sketch18_width")
sketch18.setExpression("Constraints[14]", "Params.sketch18_height")
sketch18.setExpression("Constraints[15]", "Params.sketch18_height2")
sketch18.setExpression("Constraints[16]", "Params.sketch18_width2")
groove16 = doc.addObject("PartDesign::Groove", "Groove015")
body.addObject(groove16)
groove16.Profile = sketch18
groove16.ReferenceAxis = (sketch18, ["V_Axis"])
groove16.setExpression("Angle", "Params.groove16_angle")
doc.recompute()

chamfer = doc.addObject("PartDesign::Chamfer", "Chamfer")
body.addObject(chamfer)
chamfer.Base = (groove16, edges_at(groove16, [(11.5, 230, 0)]))
chamfer.ChamferType = "Two distances"
chamfer.setExpression("Size", "Params.chamfer_size")
chamfer.setExpression("Size2", "Params.chamfer_size2")
doc.recompute()

chamfer2 = doc.addObject("PartDesign::Chamfer", "Chamfer001")
body.addObject(chamfer2)
chamfer2.Base = (chamfer, edges_at(chamfer, [(-11.5, 230, 0)]))
chamfer2.ChamferType = "Two distances"
chamfer2.setExpression("Size", "Params.chamfer2_size")
chamfer2.setExpression("Size2", "Params.chamfer2_size2")
doc.recompute()

fillet = doc.addObject("PartDesign::Fillet", "Fillet")
body.addObject(fillet)
fillet.Base = (chamfer2, edges_at(chamfer2, [
    (-11.095, 230, 16.613),
    (-11.5, 230, 17.018),
    (-11.5, 230, 18.832),
    (-11.094, 230, 19.238),
    (11.094, 230, 19.238),
    (11.5, 230, 18.832),
    (11.5, 230, 17.018),
    (11.095, 230, 16.613),
]))
fillet.setExpression("Radius", "Params.fillet_radius")
doc.recompute()

fillet2 = doc.addObject("PartDesign::Fillet", "Fillet001")
body.addObject(fillet2)
fillet2.Base = (fillet, edges_at(fillet, [
    (-7.916, 230, 9.879),
    (-7.916, 230, 13.521),
    (7.916, 230, 13.521),
    (7.916, 230, 9.879),
    (11.5, 230, 6.269),
    (-11.5, 230, 6.269),
]))
fillet2.setExpression("Radius", "Params.fillet2_radius")

doc.recompute()
